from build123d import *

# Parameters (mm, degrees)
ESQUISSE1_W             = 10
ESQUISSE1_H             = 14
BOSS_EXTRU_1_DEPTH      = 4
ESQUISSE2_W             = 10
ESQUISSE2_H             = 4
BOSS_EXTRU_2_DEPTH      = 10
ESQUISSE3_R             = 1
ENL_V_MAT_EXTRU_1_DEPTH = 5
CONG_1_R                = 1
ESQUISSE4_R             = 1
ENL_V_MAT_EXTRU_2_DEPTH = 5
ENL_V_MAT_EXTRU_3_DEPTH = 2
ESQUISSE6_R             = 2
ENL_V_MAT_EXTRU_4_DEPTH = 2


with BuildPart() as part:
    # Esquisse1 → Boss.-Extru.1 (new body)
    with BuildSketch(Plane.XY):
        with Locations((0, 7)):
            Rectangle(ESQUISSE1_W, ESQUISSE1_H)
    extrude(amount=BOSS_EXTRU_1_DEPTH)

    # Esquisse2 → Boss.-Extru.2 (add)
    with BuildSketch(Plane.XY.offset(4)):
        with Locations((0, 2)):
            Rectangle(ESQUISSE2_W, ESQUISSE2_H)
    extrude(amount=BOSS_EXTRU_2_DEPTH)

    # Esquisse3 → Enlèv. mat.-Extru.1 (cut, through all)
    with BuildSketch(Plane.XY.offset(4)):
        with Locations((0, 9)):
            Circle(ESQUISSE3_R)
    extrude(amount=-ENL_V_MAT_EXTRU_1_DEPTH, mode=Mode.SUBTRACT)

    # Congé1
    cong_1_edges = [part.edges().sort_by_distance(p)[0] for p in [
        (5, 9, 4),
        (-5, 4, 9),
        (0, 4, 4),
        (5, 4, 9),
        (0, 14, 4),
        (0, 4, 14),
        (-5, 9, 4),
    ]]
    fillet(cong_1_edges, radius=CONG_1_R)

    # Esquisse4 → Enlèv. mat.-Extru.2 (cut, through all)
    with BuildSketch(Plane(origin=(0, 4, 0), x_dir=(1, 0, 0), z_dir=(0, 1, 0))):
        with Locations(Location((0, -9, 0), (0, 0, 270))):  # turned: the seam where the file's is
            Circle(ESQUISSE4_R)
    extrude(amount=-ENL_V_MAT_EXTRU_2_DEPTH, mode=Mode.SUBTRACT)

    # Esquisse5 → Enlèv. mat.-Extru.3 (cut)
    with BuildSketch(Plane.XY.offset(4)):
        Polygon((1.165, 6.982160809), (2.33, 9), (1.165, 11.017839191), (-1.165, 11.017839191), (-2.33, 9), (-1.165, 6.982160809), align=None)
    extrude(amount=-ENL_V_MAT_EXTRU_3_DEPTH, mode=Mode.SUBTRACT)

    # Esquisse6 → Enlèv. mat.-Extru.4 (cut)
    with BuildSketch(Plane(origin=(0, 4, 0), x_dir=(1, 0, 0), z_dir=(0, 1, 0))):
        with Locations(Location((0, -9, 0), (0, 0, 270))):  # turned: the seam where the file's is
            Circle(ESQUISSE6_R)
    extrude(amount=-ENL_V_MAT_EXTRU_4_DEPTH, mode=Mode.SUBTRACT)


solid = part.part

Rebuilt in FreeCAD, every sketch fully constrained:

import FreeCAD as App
import Part
import Sketcher
from FreeCAD import Vector
Q = App.Units.Quantity


def edges_at(feature, points):
    """Names of the edges that pass closest to the given points."""
    edges = feature.Shape.Edges
    near = lambda p: min(range(len(edges)), key=lambda i: edges[i].distToShape(Part.Vertex(*p))[0])
    return sorted({f"Edge{near(p) + 1}" for p in points})

doc = App.newDocument("Part")
body = doc.addObject("PartDesign::Body", "Body")

sketch1 = body.newObject("Sketcher::SketchObject", "Sketch")
sketch1.AttachmentSupport = (doc.getObject("XY_Plane"), [""])
sketch1.MapMode = "FlatFace"
sketch1.addGeometry([
    Part.LineSegment(Vector(-5, 14, 0), Vector(-5, 0, 0)),
    Part.LineSegment(Vector(-5, 0, 0), Vector(5, 0, 0)),
    Part.LineSegment(Vector(5, 0, 0), Vector(5, 14, 0)),
    Part.LineSegment(Vector(5, 14, 0), Vector(-5, 14, 0)),
], False)
sketch1.addConstraint([
    Sketcher.Constraint("Coincident", 0, 2, 1, 1),
    Sketcher.Constraint("Coincident", 1, 2, 2, 1),
    Sketcher.Constraint("Coincident", 2, 2, 3, 1),
    Sketcher.Constraint("Coincident", 3, 2, 0, 1),
    Sketcher.Constraint("Vertical", 0),
    Sketcher.Constraint("Horizontal", 1),
    Sketcher.Constraint("Vertical", 2),
    Sketcher.Constraint("Horizontal", 3),
    Sketcher.Constraint("Symmetric", 0, 2, 1, 2, -1, 1),
    Sketcher.Constraint("DistanceX", 1, 1, 1, 2, 10.0),
    Sketcher.Constraint("DistanceY", 0, 2, 0, 1, 14.0),
])
pad1 = body.newObject("PartDesign::Pad", "Pad")
pad1.Profile = sketch1
pad1.Length = 4

sketch2 = body.newObject("Sketcher::SketchObject", "Sketch001")
sketch2.AttachmentSupport = (doc.getObject("XY_Plane"), [""])
sketch2.MapMode = "FlatFace"
sketch2.AttachmentOffset = App.Placement(Vector(0, 0, 4), App.Rotation())
sketch2.addGeometry([
    Part.LineSegment(Vector(-5, 4, 0), Vector(-5, 0, 0)),
    Part.LineSegment(Vector(-5, 0, 0), Vector(5, 0, 0)),
    Part.LineSegment(Vector(5, 0, 0), Vector(5, 4, 0)),
    Part.LineSegment(Vector(5, 4, 0), Vector(-5, 4, 0)),
], False)
sketch2.addConstraint([
    Sketcher.Constraint("Coincident", 0, 2, 1, 1),
    Sketcher.Constraint("Coincident", 1, 2, 2, 1),
    Sketcher.Constraint("Coincident", 2, 2, 3, 1),
    Sketcher.Constraint("Coincident", 3, 2, 0, 1),
    Sketcher.Constraint("Vertical", 0),
    Sketcher.Constraint("Horizontal", 1),
    Sketcher.Constraint("Vertical", 2),
    Sketcher.Constraint("Horizontal", 3),
    Sketcher.Constraint("Symmetric", 0, 2, 1, 2, -1, 1),
    Sketcher.Constraint("DistanceX", 1, 1, 1, 2, 10.0),
    Sketcher.Constraint("DistanceY", 0, 2, 0, 1, 4.0),
])
pad2 = body.newObject("PartDesign::Pad", "Pad001")
pad2.Profile = sketch2
pad2.Length = 10

sketch3 = body.newObject("Sketcher::SketchObject", "Sketch002")
sketch3.AttachmentSupport = (doc.getObject("XY_Plane"), [""])
sketch3.MapMode = "FlatFace"
sketch3.AttachmentOffset = App.Placement(Vector(0, 0, 4), App.Rotation())
sketch3.addGeometry(Part.Circle(Vector(0, 9, 0), Vector(0, 0, 1), 1), False)
sketch3.addConstraint([
    Sketcher.Constraint("PointOnObject", 0, 3, -2),
    Sketcher.Constraint("Diameter", 0, 2.0),
    Sketcher.Constraint("DistanceY", -1, 1, 0, 3, 9.0),
])
pocket1 = body.newObject("PartDesign::Pocket", "Pocket")
pocket1.Profile = sketch3
pocket1.Type = "ThroughAll"
doc.recompute()

fillet = body.newObject("PartDesign::Fillet", "Fillet")
fillet.Base = (pocket1, edges_at(pocket1, [
    (5, 9, 4),
    (-5, 4, 9),
    (0, 4, 4),
    (5, 4, 9),
    (0, 14, 4),
    (0, 4, 14),
    (-5, 9, 4),
]))
fillet.Radius = 1

sketch4 = body.newObject("Sketcher::SketchObject", "Sketch003")
sketch4.AttachmentSupport = (doc.getObject("XZ_Plane"), [""])
sketch4.MapMode = "FlatFace"
sketch4.AttachmentOffset = App.Placement(Vector(0, 0, -4), App.Rotation())
sketch4.addGeometry(Part.Circle(Vector(0, 9, 0), Vector(0, 0, 1), 1), False)
sketch4.addConstraint([
    Sketcher.Constraint("PointOnObject", 0, 3, -2),
    Sketcher.Constraint("Diameter", 0, 2.0),
    Sketcher.Constraint("DistanceY", -1, 1, 0, 3, 9.0),
])
pocket2 = body.newObject("PartDesign::Pocket", "Pocket001")
pocket2.Profile = sketch4
pocket2.Type = "ThroughAll"
pocket2.Reversed = True

sketch5 = body.newObject("Sketcher::SketchObject", "Sketch004")
sketch5.AttachmentSupport = (doc.getObject("XY_Plane"), [""])
sketch5.MapMode = "FlatFace"
sketch5.AttachmentOffset = App.Placement(Vector(0, 0, 4), App.Rotation())
sketch5.addGeometry([
    Part.LineSegment(Vector(1.2, 7, 0), Vector(2.3, 9, 0)),
    Part.LineSegment(Vector(2.3, 9, 0), Vector(1.2, 11, 0)),
    Part.LineSegment(Vector(1.2, 11, 0), Vector(-1.2, 11, 0)),
    Part.LineSegment(Vector(-1.2, 11, 0), Vector(-2.3, 9, 0)),
    Part.LineSegment(Vector(-2.3, 9, 0), Vector(-1.2, 7, 0)),
    Part.LineSegment(Vector(-1.2, 7, 0), Vector(1.2, 7, 0)),
], False)
sketch5.addConstraint([
    Sketcher.Constraint("Coincident", 0, 2, 1, 1),
    Sketcher.Constraint("Coincident", 1, 2, 2, 1),
    Sketcher.Constraint("Coincident", 2, 2, 3, 1),
    Sketcher.Constraint("Coincident", 3, 2, 4, 1),
    Sketcher.Constraint("Coincident", 4, 2, 5, 1),
    Sketcher.Constraint("Coincident", 5, 2, 0, 1),
    Sketcher.Constraint("Horizontal", 2),
    Sketcher.Constraint("Horizontal", 5),
    Sketcher.Constraint("Symmetric", 0, 2, 3, 2, -2),
    Sketcher.Constraint("Parallel", 0, 3),
    Sketcher.Constraint("Parallel", 1, 4),
    Sketcher.Constraint("Vertical", 2, 2, 4, 2),
    Sketcher.Constraint("Vertical", 1, 2, 5, 2),
    Sketcher.Constraint("Angle", 0, Q("60 deg")),
    Sketcher.Constraint("DistanceY", -1, 1, 0, 2, 9.0),
    Sketcher.Constraint("DistanceX", 2, 2, 2, 1, 2.33),
    Sketcher.Constraint("Distance", 0, 2.33),
])
pocket3 = body.newObject("PartDesign::Pocket", "Pocket002")
pocket3.Profile = sketch5
pocket3.Length = 2

sketch6 = body.newObject("Sketcher::SketchObject", "Sketch005")
sketch6.AttachmentSupport = (doc.getObject("XZ_Plane"), [""])
sketch6.MapMode = "FlatFace"
sketch6.AttachmentOffset = App.Placement(Vector(0, 0, -4), App.Rotation())
sketch6.addGeometry(Part.Circle(Vector(0, 9, 0), Vector(0, 0, 1), 2), False)
sketch6.addConstraint([
    Sketcher.Constraint("PointOnObject", 0, 3, -2),
    Sketcher.Constraint("Diameter", 0, 4.0),
    Sketcher.Constraint("DistanceY", -1, 1, 0, 3, 9.0),
])
pocket4 = body.newObject("PartDesign::Pocket", "Pocket003")
pocket4.Profile = sketch6
pocket4.Length = 2
pocket4.Reversed = True

doc.recompute()
